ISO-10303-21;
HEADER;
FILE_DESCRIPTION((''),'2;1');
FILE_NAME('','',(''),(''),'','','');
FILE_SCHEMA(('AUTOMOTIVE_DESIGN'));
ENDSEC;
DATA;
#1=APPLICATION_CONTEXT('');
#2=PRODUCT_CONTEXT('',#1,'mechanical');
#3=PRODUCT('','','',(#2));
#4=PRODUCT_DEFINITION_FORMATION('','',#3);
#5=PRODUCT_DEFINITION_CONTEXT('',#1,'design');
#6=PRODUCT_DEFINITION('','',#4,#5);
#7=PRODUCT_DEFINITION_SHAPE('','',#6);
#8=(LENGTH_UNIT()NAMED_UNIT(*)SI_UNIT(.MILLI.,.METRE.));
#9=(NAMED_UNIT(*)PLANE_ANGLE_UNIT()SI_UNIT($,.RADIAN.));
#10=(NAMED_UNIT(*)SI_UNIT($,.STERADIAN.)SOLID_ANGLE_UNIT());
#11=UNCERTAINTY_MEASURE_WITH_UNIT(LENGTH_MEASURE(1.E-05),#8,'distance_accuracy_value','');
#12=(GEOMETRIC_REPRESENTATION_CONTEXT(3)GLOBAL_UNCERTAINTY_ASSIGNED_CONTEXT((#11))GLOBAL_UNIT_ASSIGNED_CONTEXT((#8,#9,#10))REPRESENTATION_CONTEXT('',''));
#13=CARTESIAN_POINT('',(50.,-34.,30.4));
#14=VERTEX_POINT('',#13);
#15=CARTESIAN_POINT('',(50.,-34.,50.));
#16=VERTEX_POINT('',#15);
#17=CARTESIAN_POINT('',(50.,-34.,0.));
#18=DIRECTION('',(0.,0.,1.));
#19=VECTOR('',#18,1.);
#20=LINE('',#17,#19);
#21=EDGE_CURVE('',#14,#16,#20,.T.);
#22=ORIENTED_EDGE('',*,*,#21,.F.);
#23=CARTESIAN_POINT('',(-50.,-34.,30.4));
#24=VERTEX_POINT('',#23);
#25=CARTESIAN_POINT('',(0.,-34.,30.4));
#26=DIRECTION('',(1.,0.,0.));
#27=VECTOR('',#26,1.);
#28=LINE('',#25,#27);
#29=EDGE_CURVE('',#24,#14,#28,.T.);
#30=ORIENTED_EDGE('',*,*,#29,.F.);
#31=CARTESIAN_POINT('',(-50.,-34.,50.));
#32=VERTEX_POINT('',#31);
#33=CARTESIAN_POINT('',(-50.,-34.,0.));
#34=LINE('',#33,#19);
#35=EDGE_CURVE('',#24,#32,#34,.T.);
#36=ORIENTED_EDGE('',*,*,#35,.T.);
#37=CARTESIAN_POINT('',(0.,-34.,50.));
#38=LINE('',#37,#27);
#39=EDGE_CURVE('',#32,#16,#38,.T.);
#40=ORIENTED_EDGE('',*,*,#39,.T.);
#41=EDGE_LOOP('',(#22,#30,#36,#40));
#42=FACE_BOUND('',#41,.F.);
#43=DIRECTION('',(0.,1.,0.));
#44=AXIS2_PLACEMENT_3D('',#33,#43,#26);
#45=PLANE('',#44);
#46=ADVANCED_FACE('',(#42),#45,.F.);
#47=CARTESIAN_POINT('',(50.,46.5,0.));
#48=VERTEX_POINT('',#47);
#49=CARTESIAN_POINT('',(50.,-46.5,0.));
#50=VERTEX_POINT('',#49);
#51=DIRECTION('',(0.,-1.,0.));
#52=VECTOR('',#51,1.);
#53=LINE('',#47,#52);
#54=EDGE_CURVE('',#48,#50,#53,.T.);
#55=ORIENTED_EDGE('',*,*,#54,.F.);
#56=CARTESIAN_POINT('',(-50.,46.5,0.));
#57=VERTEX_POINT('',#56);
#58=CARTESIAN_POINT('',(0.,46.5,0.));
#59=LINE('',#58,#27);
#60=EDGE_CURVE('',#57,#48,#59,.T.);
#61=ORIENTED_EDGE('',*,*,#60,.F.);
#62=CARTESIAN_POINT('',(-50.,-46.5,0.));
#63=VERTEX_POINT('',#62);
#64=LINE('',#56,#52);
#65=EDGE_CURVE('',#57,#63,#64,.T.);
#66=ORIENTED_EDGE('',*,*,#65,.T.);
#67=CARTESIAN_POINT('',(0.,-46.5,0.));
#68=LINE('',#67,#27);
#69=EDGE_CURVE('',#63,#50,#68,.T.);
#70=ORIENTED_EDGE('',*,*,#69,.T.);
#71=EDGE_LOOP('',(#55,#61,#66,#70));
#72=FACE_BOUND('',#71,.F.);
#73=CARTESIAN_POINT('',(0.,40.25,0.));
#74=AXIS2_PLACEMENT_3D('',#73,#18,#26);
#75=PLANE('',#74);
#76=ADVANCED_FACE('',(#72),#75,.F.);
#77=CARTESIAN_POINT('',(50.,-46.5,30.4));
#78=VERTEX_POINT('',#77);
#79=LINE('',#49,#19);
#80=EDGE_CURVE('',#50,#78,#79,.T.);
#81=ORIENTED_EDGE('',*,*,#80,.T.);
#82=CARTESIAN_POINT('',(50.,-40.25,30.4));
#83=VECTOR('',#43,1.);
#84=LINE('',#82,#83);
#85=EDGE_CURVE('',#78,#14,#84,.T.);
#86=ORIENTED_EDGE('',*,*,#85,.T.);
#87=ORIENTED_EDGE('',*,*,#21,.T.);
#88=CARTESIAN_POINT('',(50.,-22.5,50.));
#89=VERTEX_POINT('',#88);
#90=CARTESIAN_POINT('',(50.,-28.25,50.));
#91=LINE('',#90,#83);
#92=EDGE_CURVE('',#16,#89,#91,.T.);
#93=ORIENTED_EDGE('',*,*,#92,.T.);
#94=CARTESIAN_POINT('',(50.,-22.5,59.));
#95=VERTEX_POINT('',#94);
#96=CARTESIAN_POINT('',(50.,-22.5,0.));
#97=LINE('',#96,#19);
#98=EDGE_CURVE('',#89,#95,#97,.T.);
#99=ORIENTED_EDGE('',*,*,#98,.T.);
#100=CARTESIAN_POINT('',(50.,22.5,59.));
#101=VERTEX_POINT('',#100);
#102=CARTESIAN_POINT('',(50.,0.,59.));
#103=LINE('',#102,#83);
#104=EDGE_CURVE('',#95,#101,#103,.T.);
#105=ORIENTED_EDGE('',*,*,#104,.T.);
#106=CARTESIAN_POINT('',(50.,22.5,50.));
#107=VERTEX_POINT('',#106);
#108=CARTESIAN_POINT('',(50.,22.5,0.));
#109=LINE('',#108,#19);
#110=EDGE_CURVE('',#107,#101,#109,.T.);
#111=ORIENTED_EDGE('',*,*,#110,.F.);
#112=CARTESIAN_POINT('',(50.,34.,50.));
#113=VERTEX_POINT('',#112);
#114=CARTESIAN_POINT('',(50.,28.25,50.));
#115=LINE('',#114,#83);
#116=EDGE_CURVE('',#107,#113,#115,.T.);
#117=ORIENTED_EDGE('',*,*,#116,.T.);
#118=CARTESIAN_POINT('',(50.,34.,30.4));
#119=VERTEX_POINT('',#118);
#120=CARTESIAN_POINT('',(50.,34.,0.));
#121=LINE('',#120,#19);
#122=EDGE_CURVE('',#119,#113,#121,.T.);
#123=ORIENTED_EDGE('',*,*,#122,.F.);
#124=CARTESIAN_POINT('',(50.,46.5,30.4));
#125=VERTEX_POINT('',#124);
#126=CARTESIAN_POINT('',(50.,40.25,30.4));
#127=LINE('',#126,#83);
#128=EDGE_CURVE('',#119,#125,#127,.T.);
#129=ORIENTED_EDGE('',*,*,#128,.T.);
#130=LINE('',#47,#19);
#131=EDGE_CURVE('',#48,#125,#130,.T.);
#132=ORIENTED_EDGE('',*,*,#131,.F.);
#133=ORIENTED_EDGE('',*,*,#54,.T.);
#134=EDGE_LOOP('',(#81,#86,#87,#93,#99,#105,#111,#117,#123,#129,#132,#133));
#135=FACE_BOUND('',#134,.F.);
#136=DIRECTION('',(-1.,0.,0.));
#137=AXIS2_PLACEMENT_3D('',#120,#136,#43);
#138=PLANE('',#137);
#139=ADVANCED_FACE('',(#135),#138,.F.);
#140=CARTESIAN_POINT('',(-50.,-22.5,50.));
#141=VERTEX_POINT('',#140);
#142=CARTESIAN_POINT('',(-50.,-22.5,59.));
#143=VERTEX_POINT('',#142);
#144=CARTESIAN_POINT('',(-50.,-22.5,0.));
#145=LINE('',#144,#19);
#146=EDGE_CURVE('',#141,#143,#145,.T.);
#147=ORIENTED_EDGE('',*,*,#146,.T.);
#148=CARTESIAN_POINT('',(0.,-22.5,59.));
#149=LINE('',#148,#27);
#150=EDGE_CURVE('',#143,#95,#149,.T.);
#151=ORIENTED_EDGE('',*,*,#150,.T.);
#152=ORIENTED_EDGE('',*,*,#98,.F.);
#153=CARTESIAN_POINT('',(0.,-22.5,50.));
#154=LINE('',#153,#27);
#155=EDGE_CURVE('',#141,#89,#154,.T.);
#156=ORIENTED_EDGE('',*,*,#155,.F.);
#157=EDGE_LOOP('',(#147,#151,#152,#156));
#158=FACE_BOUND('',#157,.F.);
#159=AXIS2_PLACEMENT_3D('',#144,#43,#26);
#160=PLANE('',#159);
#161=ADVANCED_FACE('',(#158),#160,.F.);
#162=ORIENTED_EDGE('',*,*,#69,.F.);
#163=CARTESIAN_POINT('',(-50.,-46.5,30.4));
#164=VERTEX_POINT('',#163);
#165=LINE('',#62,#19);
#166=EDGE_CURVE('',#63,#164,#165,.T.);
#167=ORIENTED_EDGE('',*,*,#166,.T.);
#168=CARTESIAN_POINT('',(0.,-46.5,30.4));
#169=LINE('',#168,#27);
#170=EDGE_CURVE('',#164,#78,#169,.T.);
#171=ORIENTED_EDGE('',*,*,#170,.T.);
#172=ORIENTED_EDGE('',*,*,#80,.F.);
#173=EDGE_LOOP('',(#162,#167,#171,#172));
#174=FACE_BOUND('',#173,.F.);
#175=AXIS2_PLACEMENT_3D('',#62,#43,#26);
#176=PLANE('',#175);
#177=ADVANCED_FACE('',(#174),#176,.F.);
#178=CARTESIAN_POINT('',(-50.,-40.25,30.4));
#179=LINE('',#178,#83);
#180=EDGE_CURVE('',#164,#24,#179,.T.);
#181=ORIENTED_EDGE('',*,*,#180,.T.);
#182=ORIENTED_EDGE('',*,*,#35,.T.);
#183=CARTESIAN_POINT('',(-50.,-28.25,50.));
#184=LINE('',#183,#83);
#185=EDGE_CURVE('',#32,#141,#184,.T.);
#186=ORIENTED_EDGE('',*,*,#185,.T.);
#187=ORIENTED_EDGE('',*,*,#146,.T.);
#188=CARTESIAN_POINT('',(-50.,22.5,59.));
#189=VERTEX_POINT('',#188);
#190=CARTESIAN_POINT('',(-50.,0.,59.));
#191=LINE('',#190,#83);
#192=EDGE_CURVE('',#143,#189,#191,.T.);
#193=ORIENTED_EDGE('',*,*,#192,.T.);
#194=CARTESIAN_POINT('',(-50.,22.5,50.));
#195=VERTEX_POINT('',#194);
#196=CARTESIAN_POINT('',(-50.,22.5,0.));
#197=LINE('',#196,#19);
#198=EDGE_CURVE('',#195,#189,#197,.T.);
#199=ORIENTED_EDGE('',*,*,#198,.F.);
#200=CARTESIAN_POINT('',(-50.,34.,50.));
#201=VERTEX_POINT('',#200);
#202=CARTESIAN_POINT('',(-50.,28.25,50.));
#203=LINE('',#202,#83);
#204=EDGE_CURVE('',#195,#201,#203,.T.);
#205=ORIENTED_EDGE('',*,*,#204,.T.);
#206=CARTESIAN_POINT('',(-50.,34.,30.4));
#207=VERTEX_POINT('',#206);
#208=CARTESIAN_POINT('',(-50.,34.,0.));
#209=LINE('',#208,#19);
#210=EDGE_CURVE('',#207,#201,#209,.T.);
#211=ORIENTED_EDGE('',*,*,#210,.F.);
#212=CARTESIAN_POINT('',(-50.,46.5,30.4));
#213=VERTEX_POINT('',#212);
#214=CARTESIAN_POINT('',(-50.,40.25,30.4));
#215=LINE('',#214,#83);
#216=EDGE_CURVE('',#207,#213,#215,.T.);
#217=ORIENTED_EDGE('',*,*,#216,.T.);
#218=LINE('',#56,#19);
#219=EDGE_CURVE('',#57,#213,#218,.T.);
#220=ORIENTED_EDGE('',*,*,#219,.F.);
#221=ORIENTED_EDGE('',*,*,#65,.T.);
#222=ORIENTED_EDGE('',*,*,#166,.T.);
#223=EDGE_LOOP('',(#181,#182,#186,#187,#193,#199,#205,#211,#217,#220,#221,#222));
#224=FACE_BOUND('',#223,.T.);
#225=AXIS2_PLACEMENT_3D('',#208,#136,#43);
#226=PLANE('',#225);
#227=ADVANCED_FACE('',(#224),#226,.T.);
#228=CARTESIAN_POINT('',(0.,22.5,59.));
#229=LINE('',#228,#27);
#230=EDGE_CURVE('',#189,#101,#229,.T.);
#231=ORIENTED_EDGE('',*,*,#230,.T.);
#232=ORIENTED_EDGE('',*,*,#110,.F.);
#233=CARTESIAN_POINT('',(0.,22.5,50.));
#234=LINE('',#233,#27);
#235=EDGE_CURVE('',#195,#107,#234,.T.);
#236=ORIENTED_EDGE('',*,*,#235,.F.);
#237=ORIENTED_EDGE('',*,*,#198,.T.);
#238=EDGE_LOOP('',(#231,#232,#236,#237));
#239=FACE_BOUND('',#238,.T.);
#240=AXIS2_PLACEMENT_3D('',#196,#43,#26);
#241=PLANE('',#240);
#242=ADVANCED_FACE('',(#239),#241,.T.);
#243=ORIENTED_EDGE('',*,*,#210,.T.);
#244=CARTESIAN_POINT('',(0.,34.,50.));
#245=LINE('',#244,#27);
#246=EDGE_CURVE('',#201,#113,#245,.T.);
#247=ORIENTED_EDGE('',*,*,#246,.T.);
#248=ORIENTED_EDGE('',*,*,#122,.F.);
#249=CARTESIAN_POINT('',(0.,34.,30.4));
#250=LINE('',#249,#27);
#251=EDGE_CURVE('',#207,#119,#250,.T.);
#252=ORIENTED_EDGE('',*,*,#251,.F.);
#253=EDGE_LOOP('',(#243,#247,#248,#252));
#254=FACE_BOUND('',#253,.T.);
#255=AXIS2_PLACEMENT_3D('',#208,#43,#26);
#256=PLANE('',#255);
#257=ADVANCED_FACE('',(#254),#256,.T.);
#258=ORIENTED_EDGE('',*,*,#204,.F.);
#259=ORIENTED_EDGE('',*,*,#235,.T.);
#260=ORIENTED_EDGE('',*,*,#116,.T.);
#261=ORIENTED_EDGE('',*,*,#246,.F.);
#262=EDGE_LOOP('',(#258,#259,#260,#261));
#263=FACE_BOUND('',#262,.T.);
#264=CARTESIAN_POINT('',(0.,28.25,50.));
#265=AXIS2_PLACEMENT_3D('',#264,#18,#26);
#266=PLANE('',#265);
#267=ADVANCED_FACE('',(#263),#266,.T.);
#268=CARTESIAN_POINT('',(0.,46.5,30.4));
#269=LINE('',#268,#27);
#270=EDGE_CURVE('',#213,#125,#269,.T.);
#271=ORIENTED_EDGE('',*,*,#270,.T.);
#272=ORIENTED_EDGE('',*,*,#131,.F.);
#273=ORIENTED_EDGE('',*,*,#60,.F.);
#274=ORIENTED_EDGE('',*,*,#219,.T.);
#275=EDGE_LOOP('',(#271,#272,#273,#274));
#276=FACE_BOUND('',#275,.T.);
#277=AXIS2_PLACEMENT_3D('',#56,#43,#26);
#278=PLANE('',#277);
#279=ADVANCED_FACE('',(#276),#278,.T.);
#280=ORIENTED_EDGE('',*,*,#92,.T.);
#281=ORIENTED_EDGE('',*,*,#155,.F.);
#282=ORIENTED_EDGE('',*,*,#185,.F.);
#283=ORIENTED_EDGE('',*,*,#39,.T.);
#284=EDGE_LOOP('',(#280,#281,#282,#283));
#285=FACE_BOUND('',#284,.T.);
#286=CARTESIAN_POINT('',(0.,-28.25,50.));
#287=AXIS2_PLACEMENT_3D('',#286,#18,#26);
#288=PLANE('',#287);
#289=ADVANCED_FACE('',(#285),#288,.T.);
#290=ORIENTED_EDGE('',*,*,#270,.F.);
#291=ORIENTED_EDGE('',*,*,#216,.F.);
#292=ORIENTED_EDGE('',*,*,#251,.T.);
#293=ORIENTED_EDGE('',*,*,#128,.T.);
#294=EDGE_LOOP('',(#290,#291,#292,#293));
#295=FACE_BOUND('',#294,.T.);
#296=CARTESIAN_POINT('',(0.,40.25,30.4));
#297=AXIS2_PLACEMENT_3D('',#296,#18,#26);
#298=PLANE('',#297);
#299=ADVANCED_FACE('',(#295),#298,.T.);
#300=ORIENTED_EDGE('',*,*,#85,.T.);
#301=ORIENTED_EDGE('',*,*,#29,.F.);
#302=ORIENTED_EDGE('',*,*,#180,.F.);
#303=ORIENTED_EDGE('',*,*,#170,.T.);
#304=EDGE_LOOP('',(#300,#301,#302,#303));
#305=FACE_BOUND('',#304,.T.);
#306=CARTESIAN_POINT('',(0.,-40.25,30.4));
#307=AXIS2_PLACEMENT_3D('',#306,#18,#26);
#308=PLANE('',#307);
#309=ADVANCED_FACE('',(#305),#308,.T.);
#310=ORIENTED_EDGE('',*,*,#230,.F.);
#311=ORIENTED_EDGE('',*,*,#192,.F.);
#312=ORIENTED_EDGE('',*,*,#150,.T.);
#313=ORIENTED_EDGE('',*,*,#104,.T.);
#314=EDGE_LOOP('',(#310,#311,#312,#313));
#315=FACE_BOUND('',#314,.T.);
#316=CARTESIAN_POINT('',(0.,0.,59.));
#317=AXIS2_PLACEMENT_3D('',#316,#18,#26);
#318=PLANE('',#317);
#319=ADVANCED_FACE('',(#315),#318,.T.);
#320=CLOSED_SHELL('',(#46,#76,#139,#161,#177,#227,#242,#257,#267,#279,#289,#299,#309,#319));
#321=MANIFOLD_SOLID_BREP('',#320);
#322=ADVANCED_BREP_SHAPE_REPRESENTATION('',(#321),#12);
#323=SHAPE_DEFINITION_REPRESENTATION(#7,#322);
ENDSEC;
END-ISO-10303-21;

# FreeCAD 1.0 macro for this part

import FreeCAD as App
import Part
import Sketcher

doc = App.newDocument("Part")
body = doc.addObject("PartDesign::Body", "Body")

# Sketch on XY plane
sketch1 = body.newObject("Sketcher::SketchObject", "Sketch")
sketch1.AttachmentSupport = (doc.getObject("XY_Plane"), [""])
sketch1.MapMode = "FlatFace"
sketch1.addGeometry([
    Part.LineSegment(App.Vector(-50, 22.5, 0), App.Vector(-50, -22.5, 0)),
    Part.LineSegment(App.Vector(-50, -22.5, 0), App.Vector(50, -22.5, 0)),
    Part.LineSegment(App.Vector(50, -22.5, 0), App.Vector(50, 22.5, 0)),
    Part.LineSegment(App.Vector(50, 22.5, 0), App.Vector(-50, 22.5, 0)),
], False)
sketch1.addConstraint([
    Sketcher.Constraint("Coincident", 0, 2, 1, 1),
    Sketcher.Constraint("Coincident", 1, 2, 2, 1),
    Sketcher.Constraint("Coincident", 2, 2, 3, 1),
    Sketcher.Constraint("Coincident", 3, 2, 0, 1),
    Sketcher.Constraint("Vertical", 0),
    Sketcher.Constraint("Horizontal", 1),
    Sketcher.Constraint("Vertical", 2),
    Sketcher.Constraint("Horizontal", 3),
    Sketcher.Constraint("Symmetric", 0, 2, 2, 2, -1, 1),
    Sketcher.Constraint("DistanceX", 1, 1, 1, 2, 100.0),
    Sketcher.Constraint("DistanceY", 0, 2, 0, 1, 45.0),
])
pad1 = body.newObject("PartDesign::Pad", "Pad")
pad1.Profile = sketch1
pad1.Length = 59

# Sketch on XY plane
sketch2 = body.newObject("Sketcher::SketchObject", "Sketch001")
sketch2.AttachmentSupport = (doc.getObject("XY_Plane"), [""])
sketch2.MapMode = "FlatFace"
sketch2.addGeometry([
    Part.LineSegment(App.Vector(-50, 34, 0), App.Vector(-50, 22.5, 0)),  # 0
    Part.LineSegment(App.Vector(-50, 22.5, 0), App.Vector(50, 22.5, 0)),  # 1
    Part.LineSegment(App.Vector(50, 22.5, 0), App.Vector(50, 34, 0)),  # 2
    Part.LineSegment(App.Vector(50, 34, 0), App.Vector(-50, 34, 0)),  # 3
    Part.LineSegment(App.Vector(-50, -22.5, 0), App.Vector(-50, -34, 0)),  # 4
    Part.LineSegment(App.Vector(-50, -34, 0), App.Vector(50, -34, 0)),  # 5
    Part.LineSegment(App.Vector(50, -34, 0), App.Vector(50, -22.5, 0)),  # 6
    Part.LineSegment(App.Vector(50, -22.5, 0), App.Vector(-50, -22.5, 0)),  # 7
], False)
sketch2.addConstraint([
    Sketcher.Constraint("Coincident", 0, 2, 1, 1),
    Sketcher.Constraint("Coincident", 1, 2, 2, 1),
    Sketcher.Constraint("Coincident", 2, 2, 3, 1),
    Sketcher.Constraint("Coincident", 3, 2, 0, 1),
    Sketcher.Constraint("Coincident", 4, 2, 5, 1),
    Sketcher.Constraint("Coincident", 5, 2, 6, 1),
    Sketcher.Constraint("Coincident", 6, 2, 7, 1),
    Sketcher.Constraint("Coincident", 7, 2, 4, 1),
    Sketcher.Constraint("Vertical", 0),
    Sketcher.Constraint("Horizontal", 1),
    Sketcher.Constraint("Vertical", 2),
    Sketcher.Constraint("Horizontal", 3),
    Sketcher.Constraint("Vertical", 4),
    Sketcher.Constraint("Horizontal", 5),
    Sketcher.Constraint("Vertical", 6),
    Sketcher.Constraint("Horizontal", 7),
    Sketcher.Constraint("Symmetric", 2, 2, 4, 2, -1, 1),
    Sketcher.Constraint("Symmetric", 0, 2, 6, 2, -1, 1),
    Sketcher.Constraint("Vertical", 3, 2, 4, 2),
    Sketcher.Constraint("DistanceX", 1, 1, 1, 2, 100.0),
    Sketcher.Constraint("DistanceY", 0, 2, 0, 1, 11.5),
    Sketcher.Constraint("DistanceY", -1, 1, 2, 2, 34.0),
])
pad2 = body.newObject("PartDesign::Pad", "Pad001")
pad2.Profile = sketch2
pad2.Length = 50

# Sketch on XY plane
sketch3 = body.newObject("Sketcher::SketchObject", "Sketch002")
sketch3.AttachmentSupport = (doc.getObject("XY_Plane"), [""])
sketch3.MapMode = "FlatFace"
sketch3.addGeometry([
    Part.LineSegment(App.Vector(-50, 46.5, 0), App.Vector(-50, 34, 0)),  # 0
    Part.LineSegment(App.Vector(-50, 34, 0), App.Vector(50, 34, 0)),  # 1
    Part.LineSegment(App.Vector(50, 34, 0), App.Vector(50, 46.5, 0)),  # 2
    Part.LineSegment(App.Vector(50, 46.5, 0), App.Vector(-50, 46.5, 0)),  # 3
    Part.LineSegment(App.Vector(-50, -34, 0), App.Vector(-50, -46.5, 0)),  # 4
    Part.LineSegment(App.Vector(-50, -46.5, 0), App.Vector(50, -46.5, 0)),  # 5
    Part.LineSegment(App.Vector(50, -46.5, 0), App.Vector(50, -34, 0)),  # 6
    Part.LineSegment(App.Vector(50, -34, 0), App.Vector(-50, -34, 0)),  # 7
], False)
sketch3.addConstraint([
    Sketcher.Constraint("Coincident", 0, 2, 1, 1),
    Sketcher.Constraint("Coincident", 1, 2, 2, 1),
    Sketcher.Constraint("Coincident", 2, 2, 3, 1),
    Sketcher.Constraint("Coincident", 3, 2, 0, 1),
    Sketcher.Constraint("Coincident", 4, 2, 5, 1),
    Sketcher.Constraint("Coincident", 5, 2, 6, 1),
    Sketcher.Constraint("Coincident", 6, 2, 7, 1),
    Sketcher.Constraint("Coincident", 7, 2, 4, 1),
    Sketcher.Constraint("Vertical", 0),
    Sketcher.Constraint("Horizontal", 1),
    Sketcher.Constraint("Vertical", 2),
    Sketcher.Constraint("Horizontal", 3),
    Sketcher.Constraint("Vertical", 4),
    Sketcher.Constraint("Horizontal", 5),
    Sketcher.Constraint("Vertical", 6),
    Sketcher.Constraint("Horizontal", 7),
    Sketcher.Constraint("Symmetric", 2, 2, 4, 2, -1, 1),
    Sketcher.Constraint("Symmetric", 0, 2, 6, 2, -1, 1),
    Sketcher.Constraint("Vertical", 3, 2, 4, 2),
    Sketcher.Constraint("DistanceX", 1, 1, 1, 2, 100.0),
    Sketcher.Constraint("DistanceY", 0, 2, 0, 1, 12.5),
    Sketcher.Constraint("DistanceY", -1, 1, 0, 2, 34.0),
])
pad3 = body.newObject("PartDesign::Pad", "Pad002")
pad3.Profile = sketch3
pad3.Length = 30.4

doc.recompute()
